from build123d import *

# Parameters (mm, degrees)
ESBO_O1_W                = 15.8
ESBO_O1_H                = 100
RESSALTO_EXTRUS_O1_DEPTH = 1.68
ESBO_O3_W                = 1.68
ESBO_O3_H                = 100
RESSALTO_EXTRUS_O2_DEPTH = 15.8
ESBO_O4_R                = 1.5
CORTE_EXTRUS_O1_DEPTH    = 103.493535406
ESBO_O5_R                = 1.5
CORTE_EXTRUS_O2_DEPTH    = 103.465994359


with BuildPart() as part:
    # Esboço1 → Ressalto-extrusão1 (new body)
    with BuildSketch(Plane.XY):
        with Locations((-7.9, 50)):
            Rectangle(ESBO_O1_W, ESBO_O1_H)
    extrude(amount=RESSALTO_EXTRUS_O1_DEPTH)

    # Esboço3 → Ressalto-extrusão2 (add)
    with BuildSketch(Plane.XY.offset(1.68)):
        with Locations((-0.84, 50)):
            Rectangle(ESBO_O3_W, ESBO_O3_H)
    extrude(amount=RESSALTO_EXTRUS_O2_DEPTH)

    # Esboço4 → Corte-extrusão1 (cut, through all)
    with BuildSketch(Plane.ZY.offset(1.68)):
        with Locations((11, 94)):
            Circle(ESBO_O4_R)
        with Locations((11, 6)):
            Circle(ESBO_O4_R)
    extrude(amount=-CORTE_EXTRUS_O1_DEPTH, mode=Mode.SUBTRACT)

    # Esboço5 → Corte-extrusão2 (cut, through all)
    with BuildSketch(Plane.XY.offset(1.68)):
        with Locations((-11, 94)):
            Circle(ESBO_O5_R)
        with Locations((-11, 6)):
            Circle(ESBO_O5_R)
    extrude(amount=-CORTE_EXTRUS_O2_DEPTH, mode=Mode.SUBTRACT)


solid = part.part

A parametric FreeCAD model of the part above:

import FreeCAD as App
import Part
import Sketcher

V = App.Vector
Q = App.Units.Quantity

doc = App.newDocument("Part")
params = doc.addObject("Spreadsheet::Sheet", "Params")
for row, (alias, value) in enumerate([
    ("sketch1_height", "100 mm"),
    ("sketch1_width", "15.8 mm"),
    ("pad1_length", "1.68 mm"),
    ("sketch2_height", "100 mm"),
    ("sketch2_width", "1.68 mm"),
    ("pad2_length", "15.8 mm"),
    ("sketch3_diameter", "3 mm"),
    ("sketch4_diameter", "3 mm"),
], start=1):
    params.set(f"A{row}", alias)
    params.set(f"B{row}", "=" + value)
    params.setAlias(f"B{row}", alias)

body = doc.addObject("PartDesign::Body", "Body")

# Sketch on XY plane
sketch1 = doc.addObject("Sketcher::SketchObject", "Sketch")
body.addObject(sketch1)
sketch1.AttachmentSupport = (doc.XY_Plane, [""])
sketch1.MapMode = "FlatFace"
sketch1.addGeometry([
    Part.LineSegment(V(-16, 100, 0), V(-16, 0, 0)),
    Part.LineSegment(V(-16, 0, 0), V(0, 0, 0)),
    Part.LineSegment(V(0, 0, 0), V(0, 100, 0)),
    Part.LineSegment(V(0, 100, 0), V(-16, 100, 0)),
], False)
sketch1.addConstraint([
    Sketcher.Constraint("Coincident", 0, 2, 1, 1),
    Sketcher.Constraint("Coincident", 1, 2, 2, 1),
    Sketcher.Constraint("Coincident", 2, 2, 3, 1),
    Sketcher.Constraint("Coincident", 3, 2, 0, 1),
    Sketcher.Constraint("Vertical", 0),
    Sketcher.Constraint("Horizontal", 1),
    Sketcher.Constraint("Vertical", 2),
    Sketcher.Constraint("Horizontal", 3),
    Sketcher.Constraint("Coincident", 1, 2, -1, 1),
    Sketcher.Constraint("DistanceY", 0, 2, 0, 1, Q("100 mm")),
    Sketcher.Constraint("DistanceX", 1, 1, 1, 2, Q("15.8 mm")),
])
sketch1.setExpression("Constraints[9]", "Params.sketch1_height")
sketch1.setExpression("Constraints[10]", "Params.sketch1_width")
pad1 = doc.addObject("PartDesign::Pad", "Pad")
body.addObject(pad1)
pad1.Profile = sketch1
pad1.setExpression("Length", "Params.pad1_length")

# Sketch on XY plane
sketch2 = doc.addObject("Sketcher::SketchObject", "Sketch001")
body.addObject(sketch2)
sketch2.AttachmentSupport = (doc.XY_Plane, [""])
sketch2.MapMode = "FlatFace"
sketch2.AttachmentOffset = App.Placement(V(0, 0, 1.68), App.Rotation())
sketch2.addGeometry([
    Part.LineSegment(V(-1.7, 100, 0), V(-1.7, 0, 0)),
    Part.LineSegment(V(-1.7, 0, 0), V(0, 0, 0)),
    Part.LineSegment(V(0, 0, 0), V(0, 100, 0)),
    Part.LineSegment(V(0, 100, 0), V(-1.7, 100, 0)),
], False)
sketch2.addConstraint([
    Sketcher.Constraint("Coincident", 0, 2, 1, 1),
    Sketcher.Constraint("Coincident", 1, 2, 2, 1),
    Sketcher.Constraint("Coincident", 2, 2, 3, 1),
    Sketcher.Constraint("Coincident", 3, 2, 0, 1),
    Sketcher.Constraint("Vertical", 0),
    Sketcher.Constraint("Horizontal", 1),
    Sketcher.Constraint("Vertical", 2),
    Sketcher.Constraint("Horizontal", 3),
    Sketcher.Constraint("Coincident", 1, 2, -1, 1),
    Sketcher.Constraint("DistanceY", 0, 2, 0, 1, Q("100 mm")),
    Sketcher.Constraint("DistanceX", 1, 1, 1, 2, Q("1.68 mm")),
])
sketch2.setExpression("Constraints[9]", "Params.sketch2_height")
sketch2.setExpression("Constraints[10]", "Params.sketch2_width")
pad2 = doc.addObject("PartDesign::Pad", "Pad001")
body.addObject(pad2)
pad2.Profile = sketch2
pad2.setExpression("Length", "Params.pad2_length")

# Sketch on YZ plane
sketch3 = doc.addObject("Sketcher::SketchObject", "Sketch002")
body.addObject(sketch3)
sketch3.AttachmentSupport = (doc.YZ_Plane, [""])
sketch3.MapMode = "FlatFace"
sketch3.AttachmentOffset = App.Placement(V(0, 0, -1.68), App.Rotation())
sketch3.addGeometry([
    Part.Circle(V(94, 11, 0), V(0, 0, 1), 1.5),
    Part.Circle(V(6, 11, 0), V(0, 0, 1), 1.5),
], False)
sketch3.addConstraint([
    Sketcher.Constraint("Equal", 0, 1),
    Sketcher.Constraint("Horizontal", 0, 3, 1, 3),
    Sketcher.Constraint("Diameter", 0, Q("3 mm")),
    Sketcher.Constraint("DistanceX", -1, 1, 0, 3, Q("94 mm")),
    Sketcher.Constraint("DistanceY", -1, 1, 0, 3, Q("11 mm")),
    Sketcher.Constraint("DistanceX", -1, 1, 1, 3, Q("6 mm")),
])
sketch3.setExpression("Constraints[2]", "Params.sketch3_diameter")
pocket1 = doc.addObject("PartDesign::Pocket", "Pocket")
body.addObject(pocket1)
pocket1.Profile = sketch3
pocket1.Type = "ThroughAll"
pocket1.Reversed = True

# Sketch on XY plane
sketch4 = doc.addObject("Sketcher::SketchObject", "Sketch003")
body.addObject(sketch4)
sketch4.AttachmentSupport = (doc.XY_Plane, [""])
sketch4.MapMode = "FlatFace"
sketch4.AttachmentOffset = App.Placement(V(0, 0, 1.68), App.Rotation())
sketch4.addGeometry([
    Part.Circle(V(-11, 94, 0), V(0, 0, 1), 1.5),
    Part.Circle(V(-11, 6, 0), V(0, 0, 1), 1.5),
], False)
sketch4.addConstraint([
    Sketcher.Constraint("Equal", 0, 1),
    Sketcher.Constraint("Vertical", 0, 3, 1, 3),
    Sketcher.Constraint("Diameter", 0, Q("3 mm")),
    Sketcher.Constraint("DistanceX", 0, 3, -1, 1, Q("11 mm")),
    Sketcher.Constraint("DistanceY", -1, 1, 0, 3, Q("94 mm")),
    Sketcher.Constraint("DistanceY", -1, 1, 1, 3, Q("6 mm")),
])
sketch4.setExpression("Constraints[2]", "Params.sketch4_diameter")
pocket2 = doc.addObject("PartDesign::Pocket", "Pocket001")
body.addObject(pocket2)
pocket2.Profile = sketch4
pocket2.Type = "ThroughAll"

doc.recompute()
